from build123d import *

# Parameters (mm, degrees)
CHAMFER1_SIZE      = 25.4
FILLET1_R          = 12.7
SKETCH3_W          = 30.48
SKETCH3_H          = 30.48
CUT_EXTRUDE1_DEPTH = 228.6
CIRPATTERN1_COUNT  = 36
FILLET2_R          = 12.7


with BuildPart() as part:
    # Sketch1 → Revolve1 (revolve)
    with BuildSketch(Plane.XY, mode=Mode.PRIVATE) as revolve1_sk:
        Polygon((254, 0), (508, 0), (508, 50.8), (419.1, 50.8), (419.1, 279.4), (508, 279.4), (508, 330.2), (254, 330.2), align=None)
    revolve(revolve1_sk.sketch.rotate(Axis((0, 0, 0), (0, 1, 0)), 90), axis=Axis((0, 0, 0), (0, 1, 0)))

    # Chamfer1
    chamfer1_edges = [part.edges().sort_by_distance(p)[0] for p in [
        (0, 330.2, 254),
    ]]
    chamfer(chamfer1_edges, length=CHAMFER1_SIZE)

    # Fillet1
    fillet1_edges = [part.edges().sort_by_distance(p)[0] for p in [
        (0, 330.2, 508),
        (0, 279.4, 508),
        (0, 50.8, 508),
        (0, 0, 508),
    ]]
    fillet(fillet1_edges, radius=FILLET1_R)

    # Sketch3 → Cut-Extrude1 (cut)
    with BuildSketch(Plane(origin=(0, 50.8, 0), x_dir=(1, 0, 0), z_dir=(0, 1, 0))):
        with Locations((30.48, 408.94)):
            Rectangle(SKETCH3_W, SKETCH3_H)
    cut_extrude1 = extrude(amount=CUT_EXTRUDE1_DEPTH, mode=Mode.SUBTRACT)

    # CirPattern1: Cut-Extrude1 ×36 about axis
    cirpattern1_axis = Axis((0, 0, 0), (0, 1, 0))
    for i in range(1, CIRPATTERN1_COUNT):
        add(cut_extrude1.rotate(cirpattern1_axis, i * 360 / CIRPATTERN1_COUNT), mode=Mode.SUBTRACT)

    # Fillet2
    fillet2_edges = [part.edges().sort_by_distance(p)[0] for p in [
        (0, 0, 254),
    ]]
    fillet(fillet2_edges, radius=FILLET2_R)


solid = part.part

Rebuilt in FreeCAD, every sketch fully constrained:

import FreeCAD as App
import Part
import Sketcher
from FreeCAD import Vector
Q = App.Units.Quantity


def edges_at(feature, points):
    """Names of the edges that pass closest to the given points."""
    edges = feature.Shape.Edges
    near = lambda p: min(range(len(edges)), key=lambda i: edges[i].distToShape(Part.Vertex(*p))[0])
    return sorted({f"Edge{near(p) + 1}" for p in points})

doc = App.newDocument("Part")
body = doc.addObject("PartDesign::Body", "Body")

# Sketch on XY plane
sketch1 = body.newObject("Sketcher::SketchObject", "Sketch")
sketch1.AttachmentSupport = (doc.getObject("XY_Plane"), [""])
sketch1.MapMode = "FlatFace"
sketch1.addGeometry([
    Part.LineSegment(Vector(254, 0, 0), Vector(508, 0, 0)),  # 0
    Part.LineSegment(Vector(508, 0, 0), Vector(508, 51, 0)),  # 1
    Part.LineSegment(Vector(508, 51, 0), Vector(419, 51, 0)),  # 2
    Part.LineSegment(Vector(419, 51, 0), Vector(419, 279, 0)),  # 3
    Part.LineSegment(Vector(419, 279, 0), Vector(508, 279, 0)),  # 4
    Part.LineSegment(Vector(508, 279, 0), Vector(508, 330, 0)),  # 5
    Part.LineSegment(Vector(508, 330, 0), Vector(254, 330, 0)),  # 6
    Part.LineSegment(Vector(254, 330, 0), Vector(254, 0, 0)),  # 7
], False)
sketch1.addConstraint([
    Sketcher.Constraint("Coincident", 0, 2, 1, 1),
    Sketcher.Constraint("Coincident", 1, 2, 2, 1),
    Sketcher.Constraint("Coincident", 2, 2, 3, 1),
    Sketcher.Constraint("Coincident", 3, 2, 4, 1),
    Sketcher.Constraint("Coincident", 4, 2, 5, 1),
    Sketcher.Constraint("Coincident", 5, 2, 6, 1),
    Sketcher.Constraint("Coincident", 6, 2, 7, 1),
    Sketcher.Constraint("Coincident", 7, 2, 0, 1),
    Sketcher.Constraint("Horizontal", 0),
    Sketcher.Constraint("Vertical", 1),
    Sketcher.Constraint("Horizontal", 2),
    Sketcher.Constraint("Vertical", 3),
    Sketcher.Constraint("Horizontal", 4),
    Sketcher.Constraint("Vertical", 5),
    Sketcher.Constraint("Horizontal", 6),
    Sketcher.Constraint("Vertical", 7),
    Sketcher.Constraint("PointOnObject", 0, 2, -1),
    Sketcher.Constraint("Vertical", 1, 2, 4, 2),
    Sketcher.Constraint("Equal", 1, 5),
    Sketcher.Constraint("DistanceX", 0, 1, 0, 2, Q("10 in")),
    Sketcher.Constraint("DistanceY", 1, 1, 1, 2, Q("2 in")),
    Sketcher.Constraint("DistanceY", 3, 1, 3, 2, Q("9 in")),
    Sketcher.Constraint("DistanceX", 2, 2, 2, 1, Q("3.5 in")),
    Sketcher.Constraint("DistanceX", -1, 1, 0, 2, Q("20 in")),
])
revolution = body.newObject("PartDesign::Revolution", "Revolution")
revolution.Profile = sketch1
revolution.ReferenceAxis = (sketch1, ["V_Axis"])
revolution.Angle = 360
doc.recompute()

chamfer = body.newObject("PartDesign::Chamfer", "Chamfer")
chamfer.Base = (revolution, edges_at(revolution, [(0, 330.2, 254)]))
chamfer.Size = Q("1 in")
doc.recompute()

fillet = body.newObject("PartDesign::Fillet", "Fillet")
fillet.Base = (chamfer, edges_at(chamfer, [
    (0, 330.2, 508),
    (0, 279.4, 508),
    (0, 50.8, 508),
    (0, 0, 508),
]))
fillet.Radius = Q("0.5 in")

# Sketch on XZ plane
sketch2 = body.newObject("Sketcher::SketchObject", "Sketch001")
sketch2.AttachmentSupport = (doc.getObject("XZ_Plane"), [""])
sketch2.MapMode = "FlatFace"
sketch2.AttachmentOffset = App.Placement(Vector(0, 0, -2 * 25.4), App.Rotation())
sketch2.addGeometry([
    Part.LineSegment(Vector(15, -424, 0), Vector(15, -394, 0)),
    Part.LineSegment(Vector(15, -394, 0), Vector(46, -394, 0)),
    Part.LineSegment(Vector(46, -394, 0), Vector(46, -424, 0)),
    Part.LineSegment(Vector(46, -424, 0), Vector(15, -424, 0)),
], False)
sketch2.addConstraint([
    Sketcher.Constraint("Coincident", 0, 2, 1, 1),
    Sketcher.Constraint("Coincident", 1, 2, 2, 1),
    Sketcher.Constraint("Coincident", 2, 2, 3, 1),
    Sketcher.Constraint("Coincident", 3, 2, 0, 1),
    Sketcher.Constraint("Vertical", 0),
    Sketcher.Constraint("Horizontal", 1),
    Sketcher.Constraint("Vertical", 2),
    Sketcher.Constraint("Horizontal", 3),
    Sketcher.Constraint("Equal", 3, 0),
    Sketcher.Constraint("DistanceX", 1, 1, 1, 2, Q("1.2 in")),
    Sketcher.Constraint("DistanceX", -1, 1, 0, 2, Q("0.6 in")),
    Sketcher.Constraint("DistanceY", 0, 2, -1, 1, Q("15.5 in")),
])
pocket1 = body.newObject("PartDesign::Pocket", "Pocket")
pocket1.Profile = sketch2
pocket1.Length = Q("9 in")
doc.recompute()

polarpattern = body.newObject("PartDesign::PolarPattern", "PolarPattern")
polarpattern.Originals = [pocket1]
polarpattern.Axis = (doc.getObject("Y_Axis"), [""])
polarpattern.Angle = 360
polarpattern.Occurrences = 36
body.Tip = polarpattern
doc.recompute()

fillet2 = body.newObject("PartDesign::Fillet", "Fillet001")
fillet2.Base = (polarpattern, edges_at(polarpattern, [(0, 0, 254)]))
fillet2.Radius = Q("0.5 in")

doc.recompute()
